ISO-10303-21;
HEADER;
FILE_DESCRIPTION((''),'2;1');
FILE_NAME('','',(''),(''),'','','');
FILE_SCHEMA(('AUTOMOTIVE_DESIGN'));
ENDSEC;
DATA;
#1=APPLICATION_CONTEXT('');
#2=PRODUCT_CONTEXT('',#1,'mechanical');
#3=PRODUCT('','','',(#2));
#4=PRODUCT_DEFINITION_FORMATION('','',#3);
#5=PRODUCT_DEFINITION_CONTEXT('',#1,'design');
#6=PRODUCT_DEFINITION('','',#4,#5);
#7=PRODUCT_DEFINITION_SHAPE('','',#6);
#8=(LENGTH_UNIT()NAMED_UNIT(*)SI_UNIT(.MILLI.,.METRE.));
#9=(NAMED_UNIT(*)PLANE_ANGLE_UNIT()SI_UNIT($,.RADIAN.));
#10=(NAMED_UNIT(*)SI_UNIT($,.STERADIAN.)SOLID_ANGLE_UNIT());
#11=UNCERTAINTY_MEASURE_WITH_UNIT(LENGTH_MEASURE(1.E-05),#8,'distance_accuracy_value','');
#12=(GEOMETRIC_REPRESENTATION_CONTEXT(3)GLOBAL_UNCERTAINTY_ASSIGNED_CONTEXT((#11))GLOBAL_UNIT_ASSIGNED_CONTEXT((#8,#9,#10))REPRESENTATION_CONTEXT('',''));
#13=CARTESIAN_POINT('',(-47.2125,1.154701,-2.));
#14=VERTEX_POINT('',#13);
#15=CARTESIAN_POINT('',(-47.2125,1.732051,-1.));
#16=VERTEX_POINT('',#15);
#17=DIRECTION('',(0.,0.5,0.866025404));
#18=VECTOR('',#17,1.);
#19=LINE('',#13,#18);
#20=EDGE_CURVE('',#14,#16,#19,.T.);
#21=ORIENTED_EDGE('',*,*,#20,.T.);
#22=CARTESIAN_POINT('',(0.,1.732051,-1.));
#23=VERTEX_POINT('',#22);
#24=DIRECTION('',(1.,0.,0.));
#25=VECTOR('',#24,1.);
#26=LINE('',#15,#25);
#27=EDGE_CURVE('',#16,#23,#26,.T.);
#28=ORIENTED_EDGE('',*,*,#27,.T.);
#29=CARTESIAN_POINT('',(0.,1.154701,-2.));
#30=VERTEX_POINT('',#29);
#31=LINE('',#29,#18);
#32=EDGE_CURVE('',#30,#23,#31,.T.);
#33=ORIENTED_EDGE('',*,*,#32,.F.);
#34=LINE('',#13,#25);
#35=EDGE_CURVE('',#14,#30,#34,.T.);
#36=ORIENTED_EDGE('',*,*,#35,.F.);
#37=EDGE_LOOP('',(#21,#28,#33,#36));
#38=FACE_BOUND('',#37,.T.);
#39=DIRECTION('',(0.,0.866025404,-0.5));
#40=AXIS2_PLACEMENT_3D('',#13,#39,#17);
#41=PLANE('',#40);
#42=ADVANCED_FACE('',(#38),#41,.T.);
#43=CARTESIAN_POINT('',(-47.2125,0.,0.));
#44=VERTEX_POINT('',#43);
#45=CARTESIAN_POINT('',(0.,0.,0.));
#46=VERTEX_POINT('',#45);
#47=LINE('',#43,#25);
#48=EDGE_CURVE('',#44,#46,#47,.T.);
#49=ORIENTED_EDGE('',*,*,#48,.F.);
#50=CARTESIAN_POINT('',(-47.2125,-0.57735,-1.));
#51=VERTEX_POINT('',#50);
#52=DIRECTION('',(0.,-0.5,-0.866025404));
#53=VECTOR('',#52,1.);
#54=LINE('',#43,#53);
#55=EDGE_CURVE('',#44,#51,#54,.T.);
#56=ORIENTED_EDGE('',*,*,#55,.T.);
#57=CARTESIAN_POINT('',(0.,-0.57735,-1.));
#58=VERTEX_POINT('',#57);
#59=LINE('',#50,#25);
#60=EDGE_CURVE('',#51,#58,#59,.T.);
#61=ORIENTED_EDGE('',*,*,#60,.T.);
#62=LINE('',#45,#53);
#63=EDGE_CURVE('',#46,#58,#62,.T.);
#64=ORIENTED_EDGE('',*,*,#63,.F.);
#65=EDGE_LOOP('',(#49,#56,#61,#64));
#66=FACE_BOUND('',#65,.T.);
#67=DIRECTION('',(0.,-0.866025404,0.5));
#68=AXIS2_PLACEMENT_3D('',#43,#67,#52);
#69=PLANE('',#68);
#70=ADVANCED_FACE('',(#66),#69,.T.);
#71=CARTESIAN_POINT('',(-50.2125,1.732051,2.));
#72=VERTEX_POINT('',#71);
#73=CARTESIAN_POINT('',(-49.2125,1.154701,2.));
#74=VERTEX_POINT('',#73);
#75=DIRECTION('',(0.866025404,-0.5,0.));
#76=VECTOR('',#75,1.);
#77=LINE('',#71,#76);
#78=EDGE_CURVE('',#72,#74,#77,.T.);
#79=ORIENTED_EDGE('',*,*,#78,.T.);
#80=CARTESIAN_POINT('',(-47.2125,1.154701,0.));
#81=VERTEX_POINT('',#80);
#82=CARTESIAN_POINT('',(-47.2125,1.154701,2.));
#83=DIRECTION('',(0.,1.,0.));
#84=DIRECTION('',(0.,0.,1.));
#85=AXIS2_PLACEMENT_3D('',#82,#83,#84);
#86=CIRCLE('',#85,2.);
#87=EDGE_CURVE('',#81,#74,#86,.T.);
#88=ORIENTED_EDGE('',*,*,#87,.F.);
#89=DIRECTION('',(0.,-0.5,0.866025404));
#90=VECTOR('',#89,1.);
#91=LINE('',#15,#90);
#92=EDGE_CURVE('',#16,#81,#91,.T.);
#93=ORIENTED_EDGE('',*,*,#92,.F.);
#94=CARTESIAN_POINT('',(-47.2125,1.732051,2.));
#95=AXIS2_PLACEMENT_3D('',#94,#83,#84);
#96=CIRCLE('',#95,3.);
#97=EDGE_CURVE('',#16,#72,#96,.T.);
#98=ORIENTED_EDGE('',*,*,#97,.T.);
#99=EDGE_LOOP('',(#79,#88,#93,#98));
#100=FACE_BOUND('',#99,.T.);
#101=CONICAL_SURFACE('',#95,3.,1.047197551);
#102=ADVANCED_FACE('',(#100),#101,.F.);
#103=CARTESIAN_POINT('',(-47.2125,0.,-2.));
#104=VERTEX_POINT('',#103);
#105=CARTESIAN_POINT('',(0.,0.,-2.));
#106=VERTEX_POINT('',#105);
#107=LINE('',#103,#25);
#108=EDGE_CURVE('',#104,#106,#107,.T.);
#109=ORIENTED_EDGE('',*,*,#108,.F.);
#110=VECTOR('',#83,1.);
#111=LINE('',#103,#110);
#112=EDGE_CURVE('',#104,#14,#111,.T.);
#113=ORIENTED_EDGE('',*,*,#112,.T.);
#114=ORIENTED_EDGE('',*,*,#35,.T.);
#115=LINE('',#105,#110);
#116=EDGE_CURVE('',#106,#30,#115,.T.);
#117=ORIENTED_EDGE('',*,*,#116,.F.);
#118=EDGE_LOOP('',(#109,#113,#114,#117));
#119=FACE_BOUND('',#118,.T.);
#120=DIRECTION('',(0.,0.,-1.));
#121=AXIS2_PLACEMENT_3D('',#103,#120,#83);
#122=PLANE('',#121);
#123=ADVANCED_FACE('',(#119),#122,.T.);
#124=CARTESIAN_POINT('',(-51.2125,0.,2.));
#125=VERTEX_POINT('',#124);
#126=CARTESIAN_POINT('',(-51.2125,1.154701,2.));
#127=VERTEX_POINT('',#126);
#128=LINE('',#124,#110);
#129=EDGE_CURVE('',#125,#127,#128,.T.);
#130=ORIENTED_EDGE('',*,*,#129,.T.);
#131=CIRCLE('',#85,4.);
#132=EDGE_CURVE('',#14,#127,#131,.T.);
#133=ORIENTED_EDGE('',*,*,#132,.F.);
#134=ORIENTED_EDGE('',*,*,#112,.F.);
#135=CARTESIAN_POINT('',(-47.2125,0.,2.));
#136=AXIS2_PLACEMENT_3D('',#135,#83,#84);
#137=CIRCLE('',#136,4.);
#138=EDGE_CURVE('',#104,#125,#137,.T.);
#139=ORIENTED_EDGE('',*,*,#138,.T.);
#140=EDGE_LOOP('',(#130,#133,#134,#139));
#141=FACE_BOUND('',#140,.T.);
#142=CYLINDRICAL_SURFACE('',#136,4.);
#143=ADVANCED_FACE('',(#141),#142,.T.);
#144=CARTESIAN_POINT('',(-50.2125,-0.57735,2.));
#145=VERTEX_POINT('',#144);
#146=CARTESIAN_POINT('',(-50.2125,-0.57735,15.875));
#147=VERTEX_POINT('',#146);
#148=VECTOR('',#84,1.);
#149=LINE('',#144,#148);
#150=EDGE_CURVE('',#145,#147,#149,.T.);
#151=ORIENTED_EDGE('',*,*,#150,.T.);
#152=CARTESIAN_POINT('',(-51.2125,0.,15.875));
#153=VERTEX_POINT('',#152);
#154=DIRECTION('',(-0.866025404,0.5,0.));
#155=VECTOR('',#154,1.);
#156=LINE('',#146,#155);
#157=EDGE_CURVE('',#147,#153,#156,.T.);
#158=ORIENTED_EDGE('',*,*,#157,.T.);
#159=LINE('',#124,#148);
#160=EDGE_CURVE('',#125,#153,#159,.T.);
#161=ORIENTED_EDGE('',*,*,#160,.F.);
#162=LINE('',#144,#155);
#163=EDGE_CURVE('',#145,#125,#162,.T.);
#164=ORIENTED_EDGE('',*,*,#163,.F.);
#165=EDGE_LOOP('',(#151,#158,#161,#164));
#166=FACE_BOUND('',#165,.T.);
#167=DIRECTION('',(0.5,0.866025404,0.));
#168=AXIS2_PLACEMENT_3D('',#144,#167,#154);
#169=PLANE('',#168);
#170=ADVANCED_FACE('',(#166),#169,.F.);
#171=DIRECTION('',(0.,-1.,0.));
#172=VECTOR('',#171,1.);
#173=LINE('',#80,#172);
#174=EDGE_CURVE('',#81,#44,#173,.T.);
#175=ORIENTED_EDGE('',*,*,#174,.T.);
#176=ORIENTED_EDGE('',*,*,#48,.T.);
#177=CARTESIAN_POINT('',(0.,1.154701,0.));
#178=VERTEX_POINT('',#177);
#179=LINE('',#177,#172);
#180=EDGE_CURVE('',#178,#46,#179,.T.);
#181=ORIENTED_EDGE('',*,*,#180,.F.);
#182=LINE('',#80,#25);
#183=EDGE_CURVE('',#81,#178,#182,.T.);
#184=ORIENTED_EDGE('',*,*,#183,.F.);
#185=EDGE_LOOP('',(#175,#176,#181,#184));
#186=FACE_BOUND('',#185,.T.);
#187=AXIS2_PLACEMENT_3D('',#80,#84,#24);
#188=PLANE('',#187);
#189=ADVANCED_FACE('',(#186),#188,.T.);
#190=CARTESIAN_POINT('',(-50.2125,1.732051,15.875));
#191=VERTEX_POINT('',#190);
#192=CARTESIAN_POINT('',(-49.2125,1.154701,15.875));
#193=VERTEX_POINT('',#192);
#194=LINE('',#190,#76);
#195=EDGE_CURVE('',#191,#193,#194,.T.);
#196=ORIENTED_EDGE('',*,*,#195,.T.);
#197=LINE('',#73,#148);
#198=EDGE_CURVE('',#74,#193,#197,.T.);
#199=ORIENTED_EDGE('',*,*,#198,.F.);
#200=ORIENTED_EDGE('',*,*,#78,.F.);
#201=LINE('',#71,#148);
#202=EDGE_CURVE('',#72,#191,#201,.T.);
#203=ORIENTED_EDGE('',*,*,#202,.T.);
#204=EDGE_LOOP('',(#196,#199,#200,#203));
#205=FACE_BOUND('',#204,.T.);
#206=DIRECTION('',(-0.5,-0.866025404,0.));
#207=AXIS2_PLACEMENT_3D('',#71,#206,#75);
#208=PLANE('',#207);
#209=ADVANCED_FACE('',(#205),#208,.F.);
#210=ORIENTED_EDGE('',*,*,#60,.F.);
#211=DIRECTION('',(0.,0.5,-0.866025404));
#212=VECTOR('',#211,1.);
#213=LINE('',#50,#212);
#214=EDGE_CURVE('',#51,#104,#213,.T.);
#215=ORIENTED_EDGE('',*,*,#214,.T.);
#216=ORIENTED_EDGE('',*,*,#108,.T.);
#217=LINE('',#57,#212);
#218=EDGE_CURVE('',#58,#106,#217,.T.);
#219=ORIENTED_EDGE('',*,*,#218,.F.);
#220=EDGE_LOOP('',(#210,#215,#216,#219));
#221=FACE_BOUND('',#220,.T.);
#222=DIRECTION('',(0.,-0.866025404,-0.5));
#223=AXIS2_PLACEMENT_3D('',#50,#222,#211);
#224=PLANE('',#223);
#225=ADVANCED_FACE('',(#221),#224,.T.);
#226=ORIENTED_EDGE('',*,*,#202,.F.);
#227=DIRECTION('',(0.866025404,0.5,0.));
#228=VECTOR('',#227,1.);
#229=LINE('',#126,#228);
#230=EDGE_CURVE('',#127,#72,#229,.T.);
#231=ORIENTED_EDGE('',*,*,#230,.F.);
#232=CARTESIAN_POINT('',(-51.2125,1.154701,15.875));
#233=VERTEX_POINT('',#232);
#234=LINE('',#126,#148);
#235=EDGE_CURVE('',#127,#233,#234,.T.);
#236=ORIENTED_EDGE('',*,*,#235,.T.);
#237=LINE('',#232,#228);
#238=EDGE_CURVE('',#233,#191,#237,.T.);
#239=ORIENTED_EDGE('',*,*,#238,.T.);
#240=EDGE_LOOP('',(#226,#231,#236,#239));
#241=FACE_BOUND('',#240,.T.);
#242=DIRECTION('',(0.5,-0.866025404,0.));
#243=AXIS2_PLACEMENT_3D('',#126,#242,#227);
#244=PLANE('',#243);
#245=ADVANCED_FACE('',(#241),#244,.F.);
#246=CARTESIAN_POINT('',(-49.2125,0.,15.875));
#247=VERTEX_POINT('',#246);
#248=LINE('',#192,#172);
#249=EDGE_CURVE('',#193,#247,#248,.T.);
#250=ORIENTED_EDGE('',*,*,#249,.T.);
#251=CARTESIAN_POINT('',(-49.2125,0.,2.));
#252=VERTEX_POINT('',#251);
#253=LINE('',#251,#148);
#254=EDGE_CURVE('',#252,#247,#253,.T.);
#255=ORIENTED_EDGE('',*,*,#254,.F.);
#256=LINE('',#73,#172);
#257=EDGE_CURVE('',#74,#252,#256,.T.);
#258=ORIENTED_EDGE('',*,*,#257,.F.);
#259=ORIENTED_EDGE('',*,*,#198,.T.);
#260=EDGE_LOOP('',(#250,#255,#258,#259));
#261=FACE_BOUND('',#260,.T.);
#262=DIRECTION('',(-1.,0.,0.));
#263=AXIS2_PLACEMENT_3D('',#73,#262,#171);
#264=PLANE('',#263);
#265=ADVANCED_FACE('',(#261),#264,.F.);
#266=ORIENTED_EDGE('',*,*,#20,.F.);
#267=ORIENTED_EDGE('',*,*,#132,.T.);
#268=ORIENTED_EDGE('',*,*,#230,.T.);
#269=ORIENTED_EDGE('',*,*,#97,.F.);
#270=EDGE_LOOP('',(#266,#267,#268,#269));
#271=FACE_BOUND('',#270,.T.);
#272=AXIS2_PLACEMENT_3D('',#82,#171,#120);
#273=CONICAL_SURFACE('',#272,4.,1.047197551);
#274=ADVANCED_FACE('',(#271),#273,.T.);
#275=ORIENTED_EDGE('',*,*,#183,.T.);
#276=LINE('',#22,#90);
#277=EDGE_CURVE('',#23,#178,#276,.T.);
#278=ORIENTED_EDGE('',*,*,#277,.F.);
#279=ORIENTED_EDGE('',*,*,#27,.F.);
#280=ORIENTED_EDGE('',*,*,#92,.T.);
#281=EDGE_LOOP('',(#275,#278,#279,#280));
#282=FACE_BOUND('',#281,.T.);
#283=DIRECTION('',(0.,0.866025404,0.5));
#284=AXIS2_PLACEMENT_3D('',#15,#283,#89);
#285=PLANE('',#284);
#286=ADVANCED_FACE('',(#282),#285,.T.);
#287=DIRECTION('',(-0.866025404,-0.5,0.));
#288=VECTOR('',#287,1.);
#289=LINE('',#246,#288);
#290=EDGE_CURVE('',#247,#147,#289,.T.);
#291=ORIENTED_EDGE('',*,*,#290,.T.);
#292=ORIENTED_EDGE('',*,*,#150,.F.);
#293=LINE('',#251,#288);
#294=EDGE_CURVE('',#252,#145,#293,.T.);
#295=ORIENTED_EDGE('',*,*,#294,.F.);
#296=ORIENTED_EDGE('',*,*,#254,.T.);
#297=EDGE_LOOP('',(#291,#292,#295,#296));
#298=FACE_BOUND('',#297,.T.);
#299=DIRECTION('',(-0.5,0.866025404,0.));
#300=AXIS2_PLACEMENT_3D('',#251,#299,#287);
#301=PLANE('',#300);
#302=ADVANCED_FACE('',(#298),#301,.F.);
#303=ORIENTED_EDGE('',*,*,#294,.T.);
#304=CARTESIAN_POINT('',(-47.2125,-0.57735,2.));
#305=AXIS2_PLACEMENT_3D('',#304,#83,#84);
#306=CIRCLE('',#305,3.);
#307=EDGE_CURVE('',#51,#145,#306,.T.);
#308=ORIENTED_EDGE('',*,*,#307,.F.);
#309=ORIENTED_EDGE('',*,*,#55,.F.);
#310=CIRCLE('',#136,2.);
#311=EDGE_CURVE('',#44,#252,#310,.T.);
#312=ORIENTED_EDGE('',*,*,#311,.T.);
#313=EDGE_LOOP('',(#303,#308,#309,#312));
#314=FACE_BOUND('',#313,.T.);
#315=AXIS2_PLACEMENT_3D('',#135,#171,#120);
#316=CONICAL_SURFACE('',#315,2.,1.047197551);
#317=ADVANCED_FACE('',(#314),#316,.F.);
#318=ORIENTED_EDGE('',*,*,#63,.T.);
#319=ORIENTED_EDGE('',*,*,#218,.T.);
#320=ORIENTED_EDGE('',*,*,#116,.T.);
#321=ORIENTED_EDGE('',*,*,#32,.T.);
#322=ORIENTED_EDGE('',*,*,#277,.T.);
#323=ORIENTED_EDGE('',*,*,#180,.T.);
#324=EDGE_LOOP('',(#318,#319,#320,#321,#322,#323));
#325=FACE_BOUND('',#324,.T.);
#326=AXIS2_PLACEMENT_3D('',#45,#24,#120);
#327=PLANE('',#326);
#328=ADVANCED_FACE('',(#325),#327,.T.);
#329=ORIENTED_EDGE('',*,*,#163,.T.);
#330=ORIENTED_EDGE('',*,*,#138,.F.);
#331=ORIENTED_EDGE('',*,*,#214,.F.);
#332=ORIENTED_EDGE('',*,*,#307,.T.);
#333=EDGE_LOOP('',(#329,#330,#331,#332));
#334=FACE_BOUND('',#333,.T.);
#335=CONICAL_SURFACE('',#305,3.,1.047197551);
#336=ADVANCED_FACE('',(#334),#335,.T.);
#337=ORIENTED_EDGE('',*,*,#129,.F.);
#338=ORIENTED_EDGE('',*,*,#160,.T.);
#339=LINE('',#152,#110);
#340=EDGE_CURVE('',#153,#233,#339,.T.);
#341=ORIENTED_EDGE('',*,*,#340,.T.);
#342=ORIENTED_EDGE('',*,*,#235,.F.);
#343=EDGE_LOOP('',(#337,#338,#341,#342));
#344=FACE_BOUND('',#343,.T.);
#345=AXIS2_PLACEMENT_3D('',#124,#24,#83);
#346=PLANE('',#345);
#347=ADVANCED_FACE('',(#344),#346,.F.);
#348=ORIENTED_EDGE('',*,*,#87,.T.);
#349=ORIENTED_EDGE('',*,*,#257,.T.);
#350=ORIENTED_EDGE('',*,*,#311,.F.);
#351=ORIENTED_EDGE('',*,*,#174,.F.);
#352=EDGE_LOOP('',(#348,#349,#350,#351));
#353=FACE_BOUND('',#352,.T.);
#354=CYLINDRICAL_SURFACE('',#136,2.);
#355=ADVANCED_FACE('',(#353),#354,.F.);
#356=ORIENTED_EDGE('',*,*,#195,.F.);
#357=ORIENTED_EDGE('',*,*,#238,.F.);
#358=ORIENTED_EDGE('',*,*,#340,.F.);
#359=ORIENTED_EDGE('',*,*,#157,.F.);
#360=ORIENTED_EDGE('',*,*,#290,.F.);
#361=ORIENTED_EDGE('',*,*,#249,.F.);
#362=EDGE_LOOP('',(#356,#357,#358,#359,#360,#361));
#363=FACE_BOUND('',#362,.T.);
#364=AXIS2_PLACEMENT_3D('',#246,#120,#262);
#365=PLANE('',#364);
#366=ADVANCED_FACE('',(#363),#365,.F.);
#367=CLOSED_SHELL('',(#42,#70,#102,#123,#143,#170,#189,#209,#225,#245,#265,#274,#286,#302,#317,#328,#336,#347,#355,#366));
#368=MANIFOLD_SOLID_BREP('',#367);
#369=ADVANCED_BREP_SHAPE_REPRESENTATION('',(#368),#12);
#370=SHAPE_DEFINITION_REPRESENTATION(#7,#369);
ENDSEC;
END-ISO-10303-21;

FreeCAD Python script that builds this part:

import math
import FreeCAD as App
import Part
import Sketcher
Q = App.Units.Quantity

doc = App.newDocument("Part")
params = doc.addObject("Spreadsheet::Sheet", "Params")
for row, (alias, value) in enumerate([
    ("sketch2_radius", "2 mm"),
], start=1):
    params.set(f"A{row}", alias)
    params.set(f"B{row}", "=" + value)
    params.setAlias(f"B{row}", alias)

body = doc.addObject("PartDesign::Body", "Body")

# Sketch on YZ plane
sketch1 = doc.addObject("Sketcher::SketchObject", "Sketch")
body.addObject(sketch1)
sketch1.AttachmentSupport = (doc.YZ_Plane, [""])
sketch1.MapMode = "FlatFace"
sketch1.addGeometry([
    Part.LineSegment(App.Vector(-0.57735, -1, 0), App.Vector(0, -2, 0)),  # 0
    Part.LineSegment(App.Vector(0, -2, 0), App.Vector(1.154701, -2, 0)),  # 1
    Part.LineSegment(App.Vector(1.154701, -2, 0), App.Vector(1.732051, -1, 0)),  # 2
    Part.LineSegment(App.Vector(1.732051, -1, 0), App.Vector(1.154701, 0, 0)),  # 3
    Part.LineSegment(App.Vector(1.154701, 0, 0), App.Vector(0, 0, 0)),  # 4
    Part.LineSegment(App.Vector(0, 0, 0), App.Vector(-0.57735, -1, 0)),  # 5
], False)
sketch1.addConstraint([
    Sketcher.Constraint("Coincident", 0, 2, 1, 1),
    Sketcher.Constraint("Coincident", 1, 2, 2, 1),
    Sketcher.Constraint("Coincident", 2, 2, 3, 1),
    Sketcher.Constraint("Coincident", 3, 2, 4, 1),
    Sketcher.Constraint("Coincident", 4, 2, 5, 1),
    Sketcher.Constraint("Coincident", 5, 2, 0, 1),
    Sketcher.Constraint("Horizontal", 1),
    Sketcher.Constraint("Horizontal", 4),
    Sketcher.Constraint("Coincident", 4, 2, -1, 1),
    Sketcher.Constraint("PointOnObject", 0, 2, -2),
    Sketcher.Constraint("Parallel", 0, 3),
    Sketcher.Constraint("Parallel", 2, 5),
    Sketcher.Constraint("Horizontal", 2, 2, 5, 2),
    Sketcher.Constraint("Vertical", 1, 2, 3, 2),
    Sketcher.Constraint("Angle", 0, Q("-60 deg")),
    Sketcher.Constraint("DistanceY", 0, 2, -1, 1, Q("2 mm")),
    Sketcher.Constraint("DistanceX", 1, 1, 1, 2, Q("1.154701 mm")),
])

# Sketch on XZ plane
sketch2 = doc.addObject("Sketcher::SketchObject", "Sketch001")
body.addObject(sketch2)
sketch2.AttachmentSupport = (doc.XZ_Plane, [""])
sketch2.MapMode = "FlatFace"
sketch2.addGeometry([
    Part.LineSegment(App.Vector(0, 0, 0), App.Vector(-47.2125, 0, 0)),
    Part.ArcOfCircle(Part.Circle(App.Vector(-47.2125, 2, 0), App.Vector(0, 0, 1), 2), math.radians(-180), math.radians(-90)),
    Part.LineSegment(App.Vector(-49.2125, 2, 0), App.Vector(-49.2125, 15.875, 0)),
], False)
sketch2.addConstraint([
    Sketcher.Constraint("Tangent", 0, 2, 1, 2),
    Sketcher.Constraint("Tangent", 1, 1, 2, 1),
    Sketcher.Constraint("Horizontal", 0),
    Sketcher.Constraint("Vertical", 2),
    Sketcher.Constraint("Coincident", 0, 1, -1, 1),
    Sketcher.Constraint("Radius", 1, Q("2 mm")),
    Sketcher.Constraint("DistanceY", 2, 1, 2, 2, Q("13.875 mm")),
    Sketcher.Constraint("DistanceX", 0, 2, 0, 1, Q("47.2125 mm")),
])
sketch2.setExpression("Constraints[5]", "Params.sketch2_radius")
doc.recompute()

additivepipe = doc.addObject("PartDesign::AdditivePipe", "AdditivePipe")
body.addObject(additivepipe)
additivepipe.Profile = sketch1
additivepipe.Spine = (sketch2, ["Edge1", "Edge2", "Edge3"])

doc.recompute()
